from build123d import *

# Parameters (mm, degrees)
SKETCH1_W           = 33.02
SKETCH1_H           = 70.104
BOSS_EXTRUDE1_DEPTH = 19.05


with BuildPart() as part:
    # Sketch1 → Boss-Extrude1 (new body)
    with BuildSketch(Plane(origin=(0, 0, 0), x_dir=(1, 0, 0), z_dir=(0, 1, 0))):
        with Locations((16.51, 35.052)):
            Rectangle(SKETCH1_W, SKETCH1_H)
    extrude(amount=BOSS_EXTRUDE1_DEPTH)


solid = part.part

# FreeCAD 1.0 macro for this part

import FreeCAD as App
import Part
import Sketcher
from FreeCAD import Vector
Q = App.Units.Quantity

doc = App.newDocument("Part")
body = doc.addObject("PartDesign::Body", "Body")

# Sketch on XZ plane
sketch1 = body.newObject("Sketcher::SketchObject", "Sketch")
sketch1.AttachmentSupport = (doc.getObject("XZ_Plane"), [""])
sketch1.MapMode = "FlatFace"
sketch1.addGeometry(Part.LineSegment(Vector(0, -70, 0), Vector(0, 0, 0)), False)
sketch1.addGeometry(Part.LineSegment(Vector(0, 0, 0), Vector(33, 0, 0)), False)
sketch1.addGeometry(Part.LineSegment(Vector(33, 0, 0), Vector(33, -70, 0)), False)
sketch1.addGeometry(Part.LineSegment(Vector(33, -70, 0), Vector(0, -70, 0)), False)
sketch1.addConstraint(Sketcher.Constraint("Coincident", 0, 2, 1, 1))
sketch1.addConstraint(Sketcher.Constraint("Coincident", 1, 2, 2, 1))
sketch1.addConstraint(Sketcher.Constraint("Coincident", 2, 2, 3, 1))
sketch1.addConstraint(Sketcher.Constraint("Coincident", 3, 2, 0, 1))
sketch1.addConstraint(Sketcher.Constraint("Vertical", 0))
sketch1.addConstraint(Sketcher.Constraint("Horizontal", 1))
sketch1.addConstraint(Sketcher.Constraint("Vertical", 2))
sketch1.addConstraint(Sketcher.Constraint("Horizontal", 3))
sketch1.addConstraint(Sketcher.Constraint("Coincident", 0, 2, -1, 1))
sketch1.addConstraint(Sketcher.Constraint("DistanceX", 1, 1, 1, 2, Q("1.3 in")))
sketch1.addConstraint(Sketcher.Constraint("DistanceY", 0, 1, 0, 2, Q("2.76 in")))
pad1 = body.newObject("PartDesign::Pad", "Pad")
pad1.Profile = sketch1
pad1.Length = Q("0.75 in")
pad1.Reversed = True

doc.recompute()
